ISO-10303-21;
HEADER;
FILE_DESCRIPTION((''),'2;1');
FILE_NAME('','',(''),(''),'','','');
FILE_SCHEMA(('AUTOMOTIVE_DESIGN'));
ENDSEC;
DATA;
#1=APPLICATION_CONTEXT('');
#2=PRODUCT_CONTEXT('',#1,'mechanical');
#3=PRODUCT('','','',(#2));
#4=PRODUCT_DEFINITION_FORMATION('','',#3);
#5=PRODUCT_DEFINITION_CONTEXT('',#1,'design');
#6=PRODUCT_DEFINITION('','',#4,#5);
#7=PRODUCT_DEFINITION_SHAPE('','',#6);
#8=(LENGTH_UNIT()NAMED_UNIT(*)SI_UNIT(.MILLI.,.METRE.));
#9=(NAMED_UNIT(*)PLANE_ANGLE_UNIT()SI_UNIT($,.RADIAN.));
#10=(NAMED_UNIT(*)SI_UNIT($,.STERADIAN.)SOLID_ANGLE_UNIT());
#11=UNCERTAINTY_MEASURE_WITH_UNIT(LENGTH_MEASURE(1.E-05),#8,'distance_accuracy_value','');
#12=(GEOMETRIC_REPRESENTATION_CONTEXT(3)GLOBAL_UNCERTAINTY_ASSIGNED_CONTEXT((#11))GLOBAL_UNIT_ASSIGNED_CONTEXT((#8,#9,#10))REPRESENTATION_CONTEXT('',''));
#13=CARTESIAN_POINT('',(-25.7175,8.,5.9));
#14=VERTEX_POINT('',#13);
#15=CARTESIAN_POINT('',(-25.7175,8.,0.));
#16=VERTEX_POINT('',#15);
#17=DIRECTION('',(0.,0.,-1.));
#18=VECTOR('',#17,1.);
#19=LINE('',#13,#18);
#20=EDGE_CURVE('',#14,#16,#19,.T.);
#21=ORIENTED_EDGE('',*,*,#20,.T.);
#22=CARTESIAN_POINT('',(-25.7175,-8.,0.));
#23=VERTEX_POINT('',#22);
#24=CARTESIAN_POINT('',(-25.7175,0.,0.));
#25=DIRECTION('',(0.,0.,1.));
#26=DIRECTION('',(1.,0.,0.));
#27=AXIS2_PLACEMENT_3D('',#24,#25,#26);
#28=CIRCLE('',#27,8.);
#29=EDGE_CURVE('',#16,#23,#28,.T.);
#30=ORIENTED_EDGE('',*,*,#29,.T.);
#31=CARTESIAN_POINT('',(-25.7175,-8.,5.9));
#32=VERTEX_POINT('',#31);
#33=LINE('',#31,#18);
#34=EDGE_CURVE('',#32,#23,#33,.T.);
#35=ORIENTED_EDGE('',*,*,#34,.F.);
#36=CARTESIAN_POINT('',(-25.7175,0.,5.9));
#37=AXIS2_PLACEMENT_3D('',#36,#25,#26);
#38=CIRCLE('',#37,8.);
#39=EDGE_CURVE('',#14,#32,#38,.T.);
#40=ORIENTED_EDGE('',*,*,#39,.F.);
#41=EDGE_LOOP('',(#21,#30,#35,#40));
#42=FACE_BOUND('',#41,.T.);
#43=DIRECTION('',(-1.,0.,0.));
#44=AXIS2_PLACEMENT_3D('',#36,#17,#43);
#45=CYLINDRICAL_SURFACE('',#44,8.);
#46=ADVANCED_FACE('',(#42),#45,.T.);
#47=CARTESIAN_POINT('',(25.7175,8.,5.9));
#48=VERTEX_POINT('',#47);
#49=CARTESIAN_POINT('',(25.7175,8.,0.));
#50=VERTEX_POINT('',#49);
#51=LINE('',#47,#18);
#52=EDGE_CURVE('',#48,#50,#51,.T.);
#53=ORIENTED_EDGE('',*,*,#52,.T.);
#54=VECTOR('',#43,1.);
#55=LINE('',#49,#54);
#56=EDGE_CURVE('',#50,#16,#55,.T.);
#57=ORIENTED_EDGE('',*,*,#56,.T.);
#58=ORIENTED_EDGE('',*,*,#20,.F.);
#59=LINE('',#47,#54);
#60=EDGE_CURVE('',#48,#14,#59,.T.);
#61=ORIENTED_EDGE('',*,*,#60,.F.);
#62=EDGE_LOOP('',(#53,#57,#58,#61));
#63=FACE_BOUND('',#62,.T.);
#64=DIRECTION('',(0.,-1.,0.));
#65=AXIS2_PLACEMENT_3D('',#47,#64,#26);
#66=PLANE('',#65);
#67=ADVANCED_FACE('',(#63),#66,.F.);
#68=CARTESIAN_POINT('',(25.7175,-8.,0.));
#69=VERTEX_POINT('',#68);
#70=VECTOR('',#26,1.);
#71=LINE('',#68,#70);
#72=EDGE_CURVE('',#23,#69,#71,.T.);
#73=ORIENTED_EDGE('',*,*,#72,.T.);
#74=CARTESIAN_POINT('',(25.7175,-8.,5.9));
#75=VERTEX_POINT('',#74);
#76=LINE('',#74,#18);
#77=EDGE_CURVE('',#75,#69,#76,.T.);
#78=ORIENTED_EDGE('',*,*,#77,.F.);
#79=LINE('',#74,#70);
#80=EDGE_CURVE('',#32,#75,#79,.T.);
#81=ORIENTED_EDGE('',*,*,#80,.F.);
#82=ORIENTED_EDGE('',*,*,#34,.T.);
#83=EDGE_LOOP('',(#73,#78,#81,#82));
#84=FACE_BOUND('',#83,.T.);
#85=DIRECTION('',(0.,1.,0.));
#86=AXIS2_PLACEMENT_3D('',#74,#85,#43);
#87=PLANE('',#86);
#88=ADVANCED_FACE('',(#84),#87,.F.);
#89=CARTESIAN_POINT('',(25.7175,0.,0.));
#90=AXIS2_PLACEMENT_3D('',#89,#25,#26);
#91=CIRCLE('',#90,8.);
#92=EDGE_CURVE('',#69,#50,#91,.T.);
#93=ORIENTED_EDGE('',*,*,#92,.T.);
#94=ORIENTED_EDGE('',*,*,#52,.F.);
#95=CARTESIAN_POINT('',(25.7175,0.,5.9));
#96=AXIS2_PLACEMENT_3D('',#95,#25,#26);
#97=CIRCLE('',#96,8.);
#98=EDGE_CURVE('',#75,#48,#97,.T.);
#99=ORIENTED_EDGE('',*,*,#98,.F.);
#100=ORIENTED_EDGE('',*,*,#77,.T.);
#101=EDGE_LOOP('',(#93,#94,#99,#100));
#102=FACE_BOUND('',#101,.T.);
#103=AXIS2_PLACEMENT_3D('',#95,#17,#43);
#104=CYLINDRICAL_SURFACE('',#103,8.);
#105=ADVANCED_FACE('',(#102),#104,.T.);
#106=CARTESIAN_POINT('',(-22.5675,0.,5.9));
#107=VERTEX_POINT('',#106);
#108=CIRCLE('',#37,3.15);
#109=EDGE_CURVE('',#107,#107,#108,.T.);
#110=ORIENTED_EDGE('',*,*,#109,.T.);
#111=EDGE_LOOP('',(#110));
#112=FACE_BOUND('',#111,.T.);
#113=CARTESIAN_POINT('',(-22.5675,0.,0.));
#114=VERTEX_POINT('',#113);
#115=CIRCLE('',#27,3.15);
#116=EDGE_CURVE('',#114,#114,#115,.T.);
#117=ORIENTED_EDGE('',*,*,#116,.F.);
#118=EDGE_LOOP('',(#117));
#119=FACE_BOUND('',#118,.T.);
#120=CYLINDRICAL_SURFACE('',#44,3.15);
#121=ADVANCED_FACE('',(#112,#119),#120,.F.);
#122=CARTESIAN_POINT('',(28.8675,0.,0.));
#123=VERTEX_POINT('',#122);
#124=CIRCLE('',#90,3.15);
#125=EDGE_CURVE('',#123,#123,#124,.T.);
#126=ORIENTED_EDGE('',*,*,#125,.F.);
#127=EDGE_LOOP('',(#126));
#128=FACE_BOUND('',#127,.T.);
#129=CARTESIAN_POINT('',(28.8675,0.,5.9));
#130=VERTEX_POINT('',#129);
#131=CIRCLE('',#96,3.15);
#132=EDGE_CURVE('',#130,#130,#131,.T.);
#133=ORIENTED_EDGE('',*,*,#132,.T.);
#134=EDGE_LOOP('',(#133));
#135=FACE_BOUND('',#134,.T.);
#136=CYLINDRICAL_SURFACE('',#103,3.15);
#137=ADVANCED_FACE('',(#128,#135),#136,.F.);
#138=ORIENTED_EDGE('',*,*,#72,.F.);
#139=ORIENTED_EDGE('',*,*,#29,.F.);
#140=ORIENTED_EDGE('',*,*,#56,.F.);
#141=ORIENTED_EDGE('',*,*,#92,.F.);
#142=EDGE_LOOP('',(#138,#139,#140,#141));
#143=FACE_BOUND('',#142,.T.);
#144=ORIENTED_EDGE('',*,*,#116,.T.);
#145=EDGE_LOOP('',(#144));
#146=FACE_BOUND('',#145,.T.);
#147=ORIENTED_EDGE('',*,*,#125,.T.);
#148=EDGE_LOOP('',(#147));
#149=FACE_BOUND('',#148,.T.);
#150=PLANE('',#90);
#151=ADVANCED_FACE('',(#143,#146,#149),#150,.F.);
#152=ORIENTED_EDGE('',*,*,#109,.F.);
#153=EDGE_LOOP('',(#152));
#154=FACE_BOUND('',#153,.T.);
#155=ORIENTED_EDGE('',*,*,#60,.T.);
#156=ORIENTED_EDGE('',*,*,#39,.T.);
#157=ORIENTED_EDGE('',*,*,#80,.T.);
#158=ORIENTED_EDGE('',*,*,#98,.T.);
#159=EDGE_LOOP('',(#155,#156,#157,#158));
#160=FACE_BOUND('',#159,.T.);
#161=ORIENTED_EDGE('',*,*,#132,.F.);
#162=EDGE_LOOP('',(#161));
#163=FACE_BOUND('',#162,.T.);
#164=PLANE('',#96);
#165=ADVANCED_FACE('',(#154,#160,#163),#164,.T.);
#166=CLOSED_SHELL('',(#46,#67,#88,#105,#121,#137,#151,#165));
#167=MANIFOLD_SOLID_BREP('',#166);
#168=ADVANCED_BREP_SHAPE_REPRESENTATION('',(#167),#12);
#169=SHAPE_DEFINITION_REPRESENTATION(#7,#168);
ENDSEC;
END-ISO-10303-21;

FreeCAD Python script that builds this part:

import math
import FreeCAD as App
import Part
import Sketcher
Q = App.Units.Quantity

doc = App.newDocument("Part")
params = doc.addObject("Spreadsheet::Sheet", "Params")
for row, (alias, value) in enumerate([
    ("sketch1_radius", "8 mm"),
    ("sketch1_diameter", "6.3 mm"),
    ("pad1_length", "5.9 mm"),
], start=1):
    params.set(f"A{row}", alias)
    params.set(f"B{row}", "=" + value)
    params.setAlias(f"B{row}", alias)

body = doc.addObject("PartDesign::Body", "Body")

sketch1 = body.newObject("Sketcher::SketchObject", "Sketch")
sketch1.AttachmentSupport = (doc.getObject("XY_Plane"), [""])
sketch1.MapMode = "FlatFace"
sketch1.addGeometry([
    Part.LineSegment(App.Vector(-25.7, -8, 0), App.Vector(25.7, -8, 0)),
    Part.ArcOfCircle(Part.Circle(App.Vector(25.7, 0, 0), App.Vector(0, 0, 1), 8), math.radians(-90), math.radians(90)),
    Part.LineSegment(App.Vector(25.7, 8, 0), App.Vector(-25.7, 8, 0)),
    Part.ArcOfCircle(Part.Circle(App.Vector(-25.7, 0, 0), App.Vector(0, 0, 1), 8), math.radians(90), math.radians(270)),
    Part.Circle(App.Vector(25.7, 0, 0), App.Vector(0, 0, 1), 3.1),
    Part.Circle(App.Vector(-25.7, 0, 0), App.Vector(0, 0, 1), 3.1),
], False)
sketch1.addConstraint([
    Sketcher.Constraint("Tangent", 0, 2, 1, 1),
    Sketcher.Constraint("Tangent", 1, 2, 2, 1),
    Sketcher.Constraint("Tangent", 2, 2, 3, 1),
    Sketcher.Constraint("Tangent", 3, 2, 0, 1),
    Sketcher.Constraint("Horizontal", 0),
    Sketcher.Constraint("Horizontal", 2),
    Sketcher.Constraint("Coincident", 4, 3, 1, 3),
    Sketcher.Constraint("Coincident", 5, 3, 3, 3),
    Sketcher.Constraint("Equal", 4, 5),
    Sketcher.Constraint("Symmetric", 1, 3, 3, 3, -1, 1),
    Sketcher.Constraint("Radius", 1, Q("8 mm")),
    Sketcher.Constraint("Diameter", 4, Q("6.3 mm")),
    Sketcher.Constraint("DistanceX", 0, 1, 0, 2, Q("51.435 mm")),
])
sketch1.setExpression("Constraints[10]", "Params.sketch1_radius")
sketch1.setExpression("Constraints[11]", "Params.sketch1_diameter")
pad1 = body.newObject("PartDesign::Pad", "Pad")
pad1.Profile = sketch1
pad1.setExpression("Length", "Params.pad1_length")

doc.recompute()
